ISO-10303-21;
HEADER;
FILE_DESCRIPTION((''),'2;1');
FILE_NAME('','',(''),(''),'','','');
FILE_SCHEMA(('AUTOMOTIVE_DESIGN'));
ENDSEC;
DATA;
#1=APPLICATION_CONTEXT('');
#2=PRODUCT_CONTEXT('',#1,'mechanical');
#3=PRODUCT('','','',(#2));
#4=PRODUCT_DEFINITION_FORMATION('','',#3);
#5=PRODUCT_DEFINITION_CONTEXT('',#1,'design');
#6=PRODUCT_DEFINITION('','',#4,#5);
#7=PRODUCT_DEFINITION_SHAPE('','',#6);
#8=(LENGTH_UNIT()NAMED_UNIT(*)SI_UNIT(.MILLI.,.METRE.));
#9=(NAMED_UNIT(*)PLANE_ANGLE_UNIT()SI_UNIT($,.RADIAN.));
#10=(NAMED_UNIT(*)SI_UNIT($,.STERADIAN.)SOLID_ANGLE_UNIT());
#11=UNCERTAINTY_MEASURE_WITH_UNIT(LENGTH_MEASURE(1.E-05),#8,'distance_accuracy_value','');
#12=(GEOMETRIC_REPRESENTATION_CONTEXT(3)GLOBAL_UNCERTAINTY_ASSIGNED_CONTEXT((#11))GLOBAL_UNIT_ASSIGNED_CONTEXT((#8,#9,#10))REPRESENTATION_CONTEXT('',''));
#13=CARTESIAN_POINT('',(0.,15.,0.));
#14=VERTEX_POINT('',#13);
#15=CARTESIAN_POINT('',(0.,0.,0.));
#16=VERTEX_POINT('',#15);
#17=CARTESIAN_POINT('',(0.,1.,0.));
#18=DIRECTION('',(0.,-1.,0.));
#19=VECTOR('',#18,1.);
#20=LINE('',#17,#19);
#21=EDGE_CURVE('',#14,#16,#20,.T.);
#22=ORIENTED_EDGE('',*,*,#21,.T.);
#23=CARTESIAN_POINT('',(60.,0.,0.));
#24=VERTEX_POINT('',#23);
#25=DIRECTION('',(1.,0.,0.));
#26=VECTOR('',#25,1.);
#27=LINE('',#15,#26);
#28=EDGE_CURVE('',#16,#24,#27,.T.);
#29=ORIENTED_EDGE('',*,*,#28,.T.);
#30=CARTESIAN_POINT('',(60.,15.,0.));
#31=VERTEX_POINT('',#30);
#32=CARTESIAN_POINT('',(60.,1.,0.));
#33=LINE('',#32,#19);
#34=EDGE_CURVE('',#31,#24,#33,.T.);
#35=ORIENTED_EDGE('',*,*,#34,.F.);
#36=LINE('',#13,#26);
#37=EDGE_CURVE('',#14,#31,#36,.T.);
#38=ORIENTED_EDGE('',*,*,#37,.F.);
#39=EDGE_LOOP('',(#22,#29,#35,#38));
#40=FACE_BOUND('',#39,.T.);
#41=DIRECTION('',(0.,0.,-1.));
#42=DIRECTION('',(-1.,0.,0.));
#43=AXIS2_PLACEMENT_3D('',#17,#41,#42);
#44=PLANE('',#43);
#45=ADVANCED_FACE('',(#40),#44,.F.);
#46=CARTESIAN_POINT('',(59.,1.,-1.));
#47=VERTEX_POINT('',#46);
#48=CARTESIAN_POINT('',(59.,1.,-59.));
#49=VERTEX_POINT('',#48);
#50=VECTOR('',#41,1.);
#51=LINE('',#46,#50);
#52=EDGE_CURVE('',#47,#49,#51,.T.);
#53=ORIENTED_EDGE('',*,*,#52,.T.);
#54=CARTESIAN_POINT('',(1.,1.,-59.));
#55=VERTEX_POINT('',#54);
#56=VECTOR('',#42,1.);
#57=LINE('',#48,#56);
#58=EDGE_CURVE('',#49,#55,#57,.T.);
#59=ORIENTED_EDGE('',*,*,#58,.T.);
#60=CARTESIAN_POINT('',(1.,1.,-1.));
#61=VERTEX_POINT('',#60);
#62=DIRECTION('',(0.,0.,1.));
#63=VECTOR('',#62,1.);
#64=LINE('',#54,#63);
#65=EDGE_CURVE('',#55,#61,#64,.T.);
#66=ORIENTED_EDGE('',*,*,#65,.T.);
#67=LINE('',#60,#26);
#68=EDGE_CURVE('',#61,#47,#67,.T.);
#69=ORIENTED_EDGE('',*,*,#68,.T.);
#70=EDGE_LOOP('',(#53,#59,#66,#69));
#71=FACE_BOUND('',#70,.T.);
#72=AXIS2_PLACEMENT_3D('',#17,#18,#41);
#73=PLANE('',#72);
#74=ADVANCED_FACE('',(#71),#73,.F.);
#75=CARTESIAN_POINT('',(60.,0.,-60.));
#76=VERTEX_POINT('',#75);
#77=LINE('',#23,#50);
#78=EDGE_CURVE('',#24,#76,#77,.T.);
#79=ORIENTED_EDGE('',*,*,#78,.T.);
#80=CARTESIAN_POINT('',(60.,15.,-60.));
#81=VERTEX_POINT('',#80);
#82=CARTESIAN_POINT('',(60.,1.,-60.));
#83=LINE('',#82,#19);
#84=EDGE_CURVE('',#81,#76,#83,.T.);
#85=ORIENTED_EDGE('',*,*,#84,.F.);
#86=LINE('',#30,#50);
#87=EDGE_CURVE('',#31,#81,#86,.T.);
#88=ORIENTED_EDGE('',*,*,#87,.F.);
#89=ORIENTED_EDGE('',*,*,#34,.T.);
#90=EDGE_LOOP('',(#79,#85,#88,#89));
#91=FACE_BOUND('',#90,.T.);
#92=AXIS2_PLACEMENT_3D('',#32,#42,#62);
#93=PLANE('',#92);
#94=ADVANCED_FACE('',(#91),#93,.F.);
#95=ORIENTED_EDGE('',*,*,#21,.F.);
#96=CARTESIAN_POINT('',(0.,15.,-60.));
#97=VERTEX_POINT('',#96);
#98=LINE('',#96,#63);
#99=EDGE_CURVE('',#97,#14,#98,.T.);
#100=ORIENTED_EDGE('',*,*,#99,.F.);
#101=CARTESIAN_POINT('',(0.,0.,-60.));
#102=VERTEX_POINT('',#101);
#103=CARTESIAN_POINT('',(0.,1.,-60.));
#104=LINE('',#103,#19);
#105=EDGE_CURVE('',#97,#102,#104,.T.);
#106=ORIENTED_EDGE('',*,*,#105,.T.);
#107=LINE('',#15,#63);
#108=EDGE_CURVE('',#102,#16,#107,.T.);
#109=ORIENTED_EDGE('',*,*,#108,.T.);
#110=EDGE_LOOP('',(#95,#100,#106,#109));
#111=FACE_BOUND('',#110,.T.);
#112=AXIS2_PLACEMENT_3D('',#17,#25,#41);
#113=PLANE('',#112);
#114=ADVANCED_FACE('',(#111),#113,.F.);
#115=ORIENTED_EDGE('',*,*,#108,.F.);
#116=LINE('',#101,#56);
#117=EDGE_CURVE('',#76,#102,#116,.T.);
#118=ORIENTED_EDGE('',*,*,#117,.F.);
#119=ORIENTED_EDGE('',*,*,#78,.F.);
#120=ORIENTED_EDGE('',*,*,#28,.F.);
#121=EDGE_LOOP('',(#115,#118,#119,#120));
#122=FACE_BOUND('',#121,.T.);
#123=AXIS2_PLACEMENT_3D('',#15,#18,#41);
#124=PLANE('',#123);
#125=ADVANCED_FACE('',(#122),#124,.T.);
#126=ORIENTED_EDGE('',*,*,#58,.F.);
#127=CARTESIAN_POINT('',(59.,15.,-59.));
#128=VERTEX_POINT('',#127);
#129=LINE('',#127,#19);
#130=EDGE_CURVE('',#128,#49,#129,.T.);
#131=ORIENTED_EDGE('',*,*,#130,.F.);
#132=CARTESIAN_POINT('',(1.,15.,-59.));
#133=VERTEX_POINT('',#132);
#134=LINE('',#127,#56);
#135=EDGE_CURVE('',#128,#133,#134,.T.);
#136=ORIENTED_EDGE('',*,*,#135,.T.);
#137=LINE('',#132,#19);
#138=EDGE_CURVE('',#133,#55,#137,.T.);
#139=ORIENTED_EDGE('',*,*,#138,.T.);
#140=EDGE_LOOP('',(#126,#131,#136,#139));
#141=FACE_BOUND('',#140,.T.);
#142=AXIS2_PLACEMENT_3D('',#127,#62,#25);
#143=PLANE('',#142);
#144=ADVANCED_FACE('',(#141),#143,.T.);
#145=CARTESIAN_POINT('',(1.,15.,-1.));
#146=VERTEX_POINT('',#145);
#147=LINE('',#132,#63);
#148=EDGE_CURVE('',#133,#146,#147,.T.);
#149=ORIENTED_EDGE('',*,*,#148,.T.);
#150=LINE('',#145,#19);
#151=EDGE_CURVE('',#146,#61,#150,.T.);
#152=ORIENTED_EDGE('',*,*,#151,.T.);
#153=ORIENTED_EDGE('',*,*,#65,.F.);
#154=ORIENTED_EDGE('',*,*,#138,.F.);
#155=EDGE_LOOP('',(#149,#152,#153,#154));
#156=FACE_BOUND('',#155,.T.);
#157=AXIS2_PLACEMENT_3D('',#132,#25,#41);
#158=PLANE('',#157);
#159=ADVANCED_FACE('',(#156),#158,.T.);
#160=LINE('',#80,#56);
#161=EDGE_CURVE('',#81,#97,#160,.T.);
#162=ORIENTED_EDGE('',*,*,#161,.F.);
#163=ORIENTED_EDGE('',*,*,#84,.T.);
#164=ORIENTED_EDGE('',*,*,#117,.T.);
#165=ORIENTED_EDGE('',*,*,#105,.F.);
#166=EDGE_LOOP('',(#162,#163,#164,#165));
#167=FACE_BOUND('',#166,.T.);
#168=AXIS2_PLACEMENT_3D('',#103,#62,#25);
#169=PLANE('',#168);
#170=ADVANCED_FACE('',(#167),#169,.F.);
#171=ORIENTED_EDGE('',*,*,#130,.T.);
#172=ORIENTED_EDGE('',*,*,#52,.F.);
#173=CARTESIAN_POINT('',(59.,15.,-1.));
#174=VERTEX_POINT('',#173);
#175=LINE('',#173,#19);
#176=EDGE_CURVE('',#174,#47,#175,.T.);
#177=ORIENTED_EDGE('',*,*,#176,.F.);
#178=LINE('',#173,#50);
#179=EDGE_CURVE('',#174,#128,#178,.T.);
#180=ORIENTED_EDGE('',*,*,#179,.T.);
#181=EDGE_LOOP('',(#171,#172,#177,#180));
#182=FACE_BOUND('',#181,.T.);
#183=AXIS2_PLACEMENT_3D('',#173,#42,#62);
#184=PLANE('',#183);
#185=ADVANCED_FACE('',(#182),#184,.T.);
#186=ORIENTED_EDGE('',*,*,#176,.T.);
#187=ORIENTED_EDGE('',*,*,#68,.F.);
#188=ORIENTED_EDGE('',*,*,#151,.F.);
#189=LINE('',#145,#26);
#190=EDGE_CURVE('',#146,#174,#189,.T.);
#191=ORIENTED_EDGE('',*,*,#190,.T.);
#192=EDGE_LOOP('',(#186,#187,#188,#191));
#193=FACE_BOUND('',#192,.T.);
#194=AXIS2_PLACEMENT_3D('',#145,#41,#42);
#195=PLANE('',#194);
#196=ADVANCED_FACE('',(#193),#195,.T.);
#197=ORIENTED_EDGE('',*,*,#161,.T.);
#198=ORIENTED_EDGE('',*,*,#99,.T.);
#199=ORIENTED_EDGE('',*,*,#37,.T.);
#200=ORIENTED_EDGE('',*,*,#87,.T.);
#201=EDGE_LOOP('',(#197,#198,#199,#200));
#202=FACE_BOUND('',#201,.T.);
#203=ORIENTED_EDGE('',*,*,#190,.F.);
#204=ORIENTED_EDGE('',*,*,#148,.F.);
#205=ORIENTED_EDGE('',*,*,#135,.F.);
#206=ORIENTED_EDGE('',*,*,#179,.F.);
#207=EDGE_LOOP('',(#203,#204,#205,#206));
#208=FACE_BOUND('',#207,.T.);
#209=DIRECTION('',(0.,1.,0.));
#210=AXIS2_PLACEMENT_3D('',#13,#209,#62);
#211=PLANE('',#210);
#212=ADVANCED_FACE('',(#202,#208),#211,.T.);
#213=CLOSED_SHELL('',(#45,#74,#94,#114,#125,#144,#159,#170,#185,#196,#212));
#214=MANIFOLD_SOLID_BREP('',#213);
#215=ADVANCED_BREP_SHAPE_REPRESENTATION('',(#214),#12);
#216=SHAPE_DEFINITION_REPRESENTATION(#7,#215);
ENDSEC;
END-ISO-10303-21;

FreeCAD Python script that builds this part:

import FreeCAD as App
import Part
import Sketcher
from FreeCAD import Vector

doc = App.newDocument("Part")
params = doc.addObject("Spreadsheet::Sheet", "Params")
for row, (alias, value) in enumerate([
    ("sketch1_width", "60 mm"),
    ("pad1_length", "1 mm"),
    ("sketch2_width", "60 mm"),
    ("sketch2_width2", "58 mm"),
    ("pad2_length", "14 mm"),
], start=1):
    params.set(f"A{row}", alias)
    params.set(f"B{row}", "=" + value)
    params.setAlias(f"B{row}", alias)

body = doc.addObject("PartDesign::Body", "Body")

sketch1 = doc.addObject("Sketcher::SketchObject", "Sketch")
body.addObject(sketch1)
sketch1.AttachmentSupport = (doc.XZ_Plane, [""])
sketch1.MapMode = "FlatFace"
sketch1.addGeometry(Part.LineSegment(Vector(0, -60, 0), Vector(0, 0, 0)), False)
sketch1.addGeometry(Part.LineSegment(Vector(0, 0, 0), Vector(60, 0, 0)), False)
sketch1.addGeometry(Part.LineSegment(Vector(60, 0, 0), Vector(60, -60, 0)), False)
sketch1.addGeometry(Part.LineSegment(Vector(60, -60, 0), Vector(0, -60, 0)), False)
sketch1.addConstraint(Sketcher.Constraint("Coincident", 0, 2, 1, 1))
sketch1.addConstraint(Sketcher.Constraint("Coincident", 1, 2, 2, 1))
sketch1.addConstraint(Sketcher.Constraint("Coincident", 2, 2, 3, 1))
sketch1.addConstraint(Sketcher.Constraint("Coincident", 3, 2, 0, 1))
sketch1.addConstraint(Sketcher.Constraint("Vertical", 0))
sketch1.addConstraint(Sketcher.Constraint("Horizontal", 1))
sketch1.addConstraint(Sketcher.Constraint("Vertical", 2))
sketch1.addConstraint(Sketcher.Constraint("Horizontal", 3))
sketch1.addConstraint(Sketcher.Constraint("Coincident", 0, 2, -1, 1))
sketch1.addConstraint(Sketcher.Constraint("Equal", 3, 0))
sketch1.addConstraint(Sketcher.Constraint("DistanceX", 1, 1, 1, 2, 60.0))
sketch1.setExpression("Constraints[10]", "Params.sketch1_width")
pad1 = doc.addObject("PartDesign::Pad", "Pad")
body.addObject(pad1)
pad1.Profile = sketch1
pad1.setExpression("Length", "Params.pad1_length")
pad1.Reversed = True

sketch2 = doc.addObject("Sketcher::SketchObject", "Sketch001")
body.addObject(sketch2)
sketch2.AttachmentSupport = (doc.XZ_Plane, [""])
sketch2.MapMode = "FlatFace"
sketch2.AttachmentOffset = App.Placement(Vector(0, 0, -1), App.Rotation())
sketch2.addGeometry(Part.LineSegment(Vector(0, -60, 0), Vector(0, 0, 0)), False)
sketch2.addGeometry(Part.LineSegment(Vector(0, 0, 0), Vector(60, 0, 0)), False)
sketch2.addGeometry(Part.LineSegment(Vector(60, 0, 0), Vector(60, -60, 0)), False)
sketch2.addGeometry(Part.LineSegment(Vector(60, -60, 0), Vector(0, -60, 0)), False)
sketch2.addGeometry(Part.LineSegment(Vector(59, -1, 0), Vector(1, -1, 0)), False)
sketch2.addGeometry(Part.LineSegment(Vector(1, -1, 0), Vector(1, -59, 0)), False)
sketch2.addGeometry(Part.LineSegment(Vector(1, -59, 0), Vector(59, -59, 0)), False)
sketch2.addGeometry(Part.LineSegment(Vector(59, -59, 0), Vector(59, -1, 0)), False)
sketch2.addConstraint(Sketcher.Constraint("Coincident", 0, 2, 1, 1))
sketch2.addConstraint(Sketcher.Constraint("Coincident", 1, 2, 2, 1))
sketch2.addConstraint(Sketcher.Constraint("Coincident", 2, 2, 3, 1))
sketch2.addConstraint(Sketcher.Constraint("Coincident", 3, 2, 0, 1))
sketch2.addConstraint(Sketcher.Constraint("Coincident", 4, 2, 5, 1))
sketch2.addConstraint(Sketcher.Constraint("Coincident", 5, 2, 6, 1))
sketch2.addConstraint(Sketcher.Constraint("Coincident", 6, 2, 7, 1))
sketch2.addConstraint(Sketcher.Constraint("Coincident", 7, 2, 4, 1))
sketch2.addConstraint(Sketcher.Constraint("Vertical", 0))
sketch2.addConstraint(Sketcher.Constraint("Horizontal", 1))
sketch2.addConstraint(Sketcher.Constraint("Vertical", 2))
sketch2.addConstraint(Sketcher.Constraint("Horizontal", 3))
sketch2.addConstraint(Sketcher.Constraint("Horizontal", 4))
sketch2.addConstraint(Sketcher.Constraint("Vertical", 5))
sketch2.addConstraint(Sketcher.Constraint("Horizontal", 6))
sketch2.addConstraint(Sketcher.Constraint("Vertical", 7))
sketch2.addConstraint(Sketcher.Constraint("Coincident", 0, 2, -1, 1))
sketch2.addConstraint(Sketcher.Constraint("Equal", 3, 0))
sketch2.addConstraint(Sketcher.Constraint("Equal", 6, 5))
sketch2.addConstraint(Sketcher.Constraint("DistanceX", 1, 1, 1, 2, 60.0))
sketch2.addConstraint(Sketcher.Constraint("DistanceX", 4, 2, 4, 1, 58.0))
sketch2.addConstraint(Sketcher.Constraint("DistanceX", -1, 1, 4, 2, 1.0))
sketch2.addConstraint(Sketcher.Constraint("DistanceY", 4, 2, -1, 1, 1.0))
sketch2.setExpression("Constraints[19]", "Params.sketch2_width")
sketch2.setExpression("Constraints[20]", "Params.sketch2_width2")
pad2 = doc.addObject("PartDesign::Pad", "Pad001")
body.addObject(pad2)
pad2.Profile = sketch2
pad2.setExpression("Length", "Params.pad2_length")
pad2.Reversed = True

doc.recompute()
